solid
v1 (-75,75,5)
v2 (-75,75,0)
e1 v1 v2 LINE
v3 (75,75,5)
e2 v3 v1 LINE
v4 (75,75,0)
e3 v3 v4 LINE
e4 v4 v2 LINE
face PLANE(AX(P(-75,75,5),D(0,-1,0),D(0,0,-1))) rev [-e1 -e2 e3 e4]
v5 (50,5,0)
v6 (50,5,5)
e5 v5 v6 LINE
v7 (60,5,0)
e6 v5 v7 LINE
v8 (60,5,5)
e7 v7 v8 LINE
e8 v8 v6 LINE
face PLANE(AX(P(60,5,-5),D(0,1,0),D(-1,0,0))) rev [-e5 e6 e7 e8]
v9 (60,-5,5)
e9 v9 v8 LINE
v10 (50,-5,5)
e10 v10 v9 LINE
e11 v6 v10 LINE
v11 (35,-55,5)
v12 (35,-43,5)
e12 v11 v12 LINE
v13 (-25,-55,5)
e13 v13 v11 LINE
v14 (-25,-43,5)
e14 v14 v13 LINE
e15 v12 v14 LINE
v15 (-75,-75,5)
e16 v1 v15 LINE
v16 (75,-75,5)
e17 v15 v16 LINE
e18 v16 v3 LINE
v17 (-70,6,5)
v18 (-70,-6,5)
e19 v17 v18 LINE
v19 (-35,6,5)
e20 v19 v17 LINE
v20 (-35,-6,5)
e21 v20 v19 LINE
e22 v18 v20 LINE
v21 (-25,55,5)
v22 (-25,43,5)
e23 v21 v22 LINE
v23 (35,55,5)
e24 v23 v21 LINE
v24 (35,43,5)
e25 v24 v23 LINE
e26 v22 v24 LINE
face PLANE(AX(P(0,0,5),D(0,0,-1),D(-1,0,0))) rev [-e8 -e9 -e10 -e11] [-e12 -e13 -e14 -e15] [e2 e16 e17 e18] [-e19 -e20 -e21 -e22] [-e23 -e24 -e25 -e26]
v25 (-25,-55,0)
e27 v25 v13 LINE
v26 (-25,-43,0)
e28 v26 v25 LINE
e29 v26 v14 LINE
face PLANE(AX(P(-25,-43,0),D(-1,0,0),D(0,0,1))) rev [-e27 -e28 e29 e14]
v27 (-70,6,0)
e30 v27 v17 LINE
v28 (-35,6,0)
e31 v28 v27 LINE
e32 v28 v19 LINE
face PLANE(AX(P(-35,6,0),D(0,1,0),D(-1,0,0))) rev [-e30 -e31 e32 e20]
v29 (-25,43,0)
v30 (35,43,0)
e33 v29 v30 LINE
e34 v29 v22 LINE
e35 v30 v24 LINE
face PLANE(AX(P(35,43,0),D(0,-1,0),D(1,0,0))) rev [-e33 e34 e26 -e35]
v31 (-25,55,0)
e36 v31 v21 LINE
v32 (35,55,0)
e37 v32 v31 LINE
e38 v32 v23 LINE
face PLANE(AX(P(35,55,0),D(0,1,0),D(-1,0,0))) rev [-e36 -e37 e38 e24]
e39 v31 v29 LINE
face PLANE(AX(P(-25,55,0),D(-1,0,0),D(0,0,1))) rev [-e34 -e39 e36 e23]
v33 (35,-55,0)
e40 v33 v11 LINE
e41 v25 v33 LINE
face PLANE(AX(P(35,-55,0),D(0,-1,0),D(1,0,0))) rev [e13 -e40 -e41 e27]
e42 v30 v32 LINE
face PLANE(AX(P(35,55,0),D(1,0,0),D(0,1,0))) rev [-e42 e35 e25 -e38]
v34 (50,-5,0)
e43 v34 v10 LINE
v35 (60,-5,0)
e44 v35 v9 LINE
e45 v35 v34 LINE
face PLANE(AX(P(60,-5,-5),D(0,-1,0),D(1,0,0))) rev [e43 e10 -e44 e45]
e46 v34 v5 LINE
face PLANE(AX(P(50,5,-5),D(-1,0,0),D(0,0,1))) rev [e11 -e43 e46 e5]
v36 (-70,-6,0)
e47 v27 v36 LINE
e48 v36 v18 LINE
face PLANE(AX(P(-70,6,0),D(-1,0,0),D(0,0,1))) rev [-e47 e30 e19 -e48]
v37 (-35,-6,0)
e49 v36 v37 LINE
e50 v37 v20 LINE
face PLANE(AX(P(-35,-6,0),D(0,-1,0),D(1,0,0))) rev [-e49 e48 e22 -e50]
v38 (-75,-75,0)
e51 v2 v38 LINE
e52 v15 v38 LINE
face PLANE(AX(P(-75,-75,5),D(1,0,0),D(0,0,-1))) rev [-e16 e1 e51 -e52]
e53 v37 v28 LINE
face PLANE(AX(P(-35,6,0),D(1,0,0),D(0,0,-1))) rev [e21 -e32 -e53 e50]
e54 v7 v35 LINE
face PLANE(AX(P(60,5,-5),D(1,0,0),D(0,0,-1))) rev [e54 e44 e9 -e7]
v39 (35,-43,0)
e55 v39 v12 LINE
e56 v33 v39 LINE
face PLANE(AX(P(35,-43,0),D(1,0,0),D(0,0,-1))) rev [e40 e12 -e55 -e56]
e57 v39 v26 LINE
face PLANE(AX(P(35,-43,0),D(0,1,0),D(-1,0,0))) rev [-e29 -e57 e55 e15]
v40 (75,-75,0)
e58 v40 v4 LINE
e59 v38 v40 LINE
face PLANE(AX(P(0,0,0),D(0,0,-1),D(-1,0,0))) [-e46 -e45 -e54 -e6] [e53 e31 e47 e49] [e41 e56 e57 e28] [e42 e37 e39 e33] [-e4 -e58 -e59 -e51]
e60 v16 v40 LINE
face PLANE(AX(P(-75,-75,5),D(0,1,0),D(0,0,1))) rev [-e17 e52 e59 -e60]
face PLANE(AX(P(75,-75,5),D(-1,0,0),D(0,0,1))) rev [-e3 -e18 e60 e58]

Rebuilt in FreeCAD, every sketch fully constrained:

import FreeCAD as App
import Part
import Sketcher
from FreeCAD import Vector

doc = App.newDocument("Part")
body = doc.addObject("PartDesign::Body", "Body")

sketch1 = doc.addObject("Sketcher::SketchObject", "Sketch")
body.addObject(sketch1)
sketch1.AttachmentSupport = (doc.XY_Plane, [""])
sketch1.MapMode = "FlatFace"
sketch1.addGeometry(Part.LineSegment(Vector(-75, 75, 0), Vector(-75, -75, 0)), False)
sketch1.addGeometry(Part.LineSegment(Vector(-75, -75, 0), Vector(75, -75, 0)), False)
sketch1.addGeometry(Part.LineSegment(Vector(75, -75, 0), Vector(75, 75, 0)), False)
sketch1.addGeometry(Part.LineSegment(Vector(75, 75, 0), Vector(-75, 75, 0)), False)
sketch1.addConstraint(Sketcher.Constraint("Coincident", 0, 2, 1, 1))
sketch1.addConstraint(Sketcher.Constraint("Coincident", 1, 2, 2, 1))
sketch1.addConstraint(Sketcher.Constraint("Coincident", 2, 2, 3, 1))
sketch1.addConstraint(Sketcher.Constraint("Coincident", 3, 2, 0, 1))
sketch1.addConstraint(Sketcher.Constraint("Vertical", 0))
sketch1.addConstraint(Sketcher.Constraint("Horizontal", 1))
sketch1.addConstraint(Sketcher.Constraint("Vertical", 2))
sketch1.addConstraint(Sketcher.Constraint("Horizontal", 3))
sketch1.addConstraint(Sketcher.Constraint("Symmetric", 0, 2, 2, 2, -1, 1))
sketch1.addConstraint(Sketcher.Constraint("Equal", 3, 0))
sketch1.addConstraint(Sketcher.Constraint("DistanceX", 1, 1, 1, 2, 150.0))
pad1 = doc.addObject("PartDesign::Pad", "Pad")
body.addObject(pad1)
pad1.Profile = sketch1
pad1.Length = 5

sketch2 = doc.addObject("Sketcher::SketchObject", "Sketch001")
body.addObject(sketch2)
sketch2.AttachmentSupport = (doc.XY_Plane, [""])
sketch2.MapMode = "FlatFace"
sketch2.AttachmentOffset = App.Placement(Vector(0, 0, 5), App.Rotation())
sketch2.addGeometry(Part.LineSegment(Vector(-25, 55, 0), Vector(-25, 43, 0)), False)
sketch2.addGeometry(Part.LineSegment(Vector(-25, 43, 0), Vector(35, 43, 0)), False)
sketch2.addGeometry(Part.LineSegment(Vector(35, 43, 0), Vector(35, 55, 0)), False)
sketch2.addGeometry(Part.LineSegment(Vector(35, 55, 0), Vector(-25, 55, 0)), False)
sketch2.addGeometry(Part.LineSegment(Vector(-25, -43, 0), Vector(-25, -55, 0)), False)
sketch2.addGeometry(Part.LineSegment(Vector(-25, -55, 0), Vector(35, -55, 0)), False)
sketch2.addGeometry(Part.LineSegment(Vector(35, -55, 0), Vector(35, -43, 0)), False)
sketch2.addGeometry(Part.LineSegment(Vector(35, -43, 0), Vector(-25, -43, 0)), False)
sketch2.addGeometry(Part.LineSegment(Vector(-70, 6, 0), Vector(-70, -6, 0)), False)
sketch2.addGeometry(Part.LineSegment(Vector(-70, -6, 0), Vector(-35, -6, 0)), False)
sketch2.addGeometry(Part.LineSegment(Vector(-35, -6, 0), Vector(-35, 6, 0)), False)
sketch2.addGeometry(Part.LineSegment(Vector(-35, 6, 0), Vector(-70, 6, 0)), False)
sketch2.addConstraint(Sketcher.Constraint("Coincident", 0, 2, 1, 1))
sketch2.addConstraint(Sketcher.Constraint("Coincident", 1, 2, 2, 1))
sketch2.addConstraint(Sketcher.Constraint("Coincident", 2, 2, 3, 1))
sketch2.addConstraint(Sketcher.Constraint("Coincident", 3, 2, 0, 1))
sketch2.addConstraint(Sketcher.Constraint("Coincident", 4, 2, 5, 1))
sketch2.addConstraint(Sketcher.Constraint("Coincident", 5, 2, 6, 1))
sketch2.addConstraint(Sketcher.Constraint("Coincident", 6, 2, 7, 1))
sketch2.addConstraint(Sketcher.Constraint("Coincident", 7, 2, 4, 1))
sketch2.addConstraint(Sketcher.Constraint("Coincident", 8, 2, 9, 1))
sketch2.addConstraint(Sketcher.Constraint("Coincident", 9, 2, 10, 1))
sketch2.addConstraint(Sketcher.Constraint("Coincident", 10, 2, 11, 1))
sketch2.addConstraint(Sketcher.Constraint("Coincident", 11, 2, 8, 1))
sketch2.addConstraint(Sketcher.Constraint("Vertical", 0))
sketch2.addConstraint(Sketcher.Constraint("Horizontal", 1))
sketch2.addConstraint(Sketcher.Constraint("Vertical", 2))
sketch2.addConstraint(Sketcher.Constraint("Horizontal", 3))
sketch2.addConstraint(Sketcher.Constraint("Vertical", 4))
sketch2.addConstraint(Sketcher.Constraint("Horizontal", 5))
sketch2.addConstraint(Sketcher.Constraint("Vertical", 6))
sketch2.addConstraint(Sketcher.Constraint("Horizontal", 7))
sketch2.addConstraint(Sketcher.Constraint("Vertical", 8))
sketch2.addConstraint(Sketcher.Constraint("Horizontal", 9))
sketch2.addConstraint(Sketcher.Constraint("Vertical", 10))
sketch2.addConstraint(Sketcher.Constraint("Horizontal", 11))
sketch2.addConstraint(Sketcher.Constraint("Symmetric", 3, 2, 4, 2, -1))
sketch2.addConstraint(Sketcher.Constraint("Symmetric", 1, 2, 6, 2, -1))
sketch2.addConstraint(Sketcher.Constraint("Equal", 6, 8))
sketch2.addConstraint(Sketcher.Constraint("DistanceX", 1, 1, 1, 2, 60.0))
sketch2.addConstraint(Sketcher.Constraint("DistanceX", 9, 1, 9, 2, 35.0))
sketch2.addConstraint(Sketcher.Constraint("DistanceY", 0, 2, 0, 1, 12.0))
sketch2.addConstraint(Sketcher.Constraint("DistanceX", 0, 2, -1, 1, 25.0))
sketch2.addConstraint(Sketcher.Constraint("DistanceY", -1, 1, 0, 2, 43.0))
sketch2.addConstraint(Sketcher.Constraint("DistanceX", 8, 2, -1, 1, 70.0))
sketch2.addConstraint(Sketcher.Constraint("DistanceY", 8, 2, -1, 1, 6.0))
pocket1 = doc.addObject("PartDesign::Pocket", "Pocket")
body.addObject(pocket1)
pocket1.Profile = sketch2
pocket1.Type = "ThroughAll"

sketch3 = doc.addObject("Sketcher::SketchObject", "Sketch002")
body.addObject(sketch3)
sketch3.AttachmentSupport = (doc.XY_Plane, [""])
sketch3.MapMode = "FlatFace"
sketch3.AttachmentOffset = App.Placement(Vector(0, 0, 5), App.Rotation())
sketch3.addGeometry(Part.LineSegment(Vector(50, 5, 0), Vector(50, -5, 0)), False)
sketch3.addGeometry(Part.LineSegment(Vector(50, -5, 0), Vector(60, -5, 0)), False)
sketch3.addGeometry(Part.LineSegment(Vector(60, -5, 0), Vector(60, 5, 0)), False)
sketch3.addGeometry(Part.LineSegment(Vector(60, 5, 0), Vector(50, 5, 0)), False)
sketch3.addConstraint(Sketcher.Constraint("Coincident", 0, 2, 1, 1))
sketch3.addConstraint(Sketcher.Constraint("Coincident", 1, 2, 2, 1))
sketch3.addConstraint(Sketcher.Constraint("Coincident", 2, 2, 3, 1))
sketch3.addConstraint(Sketcher.Constraint("Coincident", 3, 2, 0, 1))
sketch3.addConstraint(Sketcher.Constraint("Vertical", 0))
sketch3.addConstraint(Sketcher.Constraint("Horizontal", 1))
sketch3.addConstraint(Sketcher.Constraint("Vertical", 2))
sketch3.addConstraint(Sketcher.Constraint("Horizontal", 3))
sketch3.addConstraint(Sketcher.Constraint("Equal", 3, 0))
sketch3.addConstraint(Sketcher.Constraint("DistanceX", 1, 1, 1, 2, 10.0))
sketch3.addConstraint(Sketcher.Constraint("DistanceX", -1, 1, 0, 2, 50.0))
sketch3.addConstraint(Sketcher.Constraint("DistanceY", 0, 2, -1, 1, 5.0))
pocket2 = doc.addObject("PartDesign::Pocket", "Pocket001")
body.addObject(pocket2)
pocket2.Profile = sketch3
pocket2.Length = 10

doc.recompute()
